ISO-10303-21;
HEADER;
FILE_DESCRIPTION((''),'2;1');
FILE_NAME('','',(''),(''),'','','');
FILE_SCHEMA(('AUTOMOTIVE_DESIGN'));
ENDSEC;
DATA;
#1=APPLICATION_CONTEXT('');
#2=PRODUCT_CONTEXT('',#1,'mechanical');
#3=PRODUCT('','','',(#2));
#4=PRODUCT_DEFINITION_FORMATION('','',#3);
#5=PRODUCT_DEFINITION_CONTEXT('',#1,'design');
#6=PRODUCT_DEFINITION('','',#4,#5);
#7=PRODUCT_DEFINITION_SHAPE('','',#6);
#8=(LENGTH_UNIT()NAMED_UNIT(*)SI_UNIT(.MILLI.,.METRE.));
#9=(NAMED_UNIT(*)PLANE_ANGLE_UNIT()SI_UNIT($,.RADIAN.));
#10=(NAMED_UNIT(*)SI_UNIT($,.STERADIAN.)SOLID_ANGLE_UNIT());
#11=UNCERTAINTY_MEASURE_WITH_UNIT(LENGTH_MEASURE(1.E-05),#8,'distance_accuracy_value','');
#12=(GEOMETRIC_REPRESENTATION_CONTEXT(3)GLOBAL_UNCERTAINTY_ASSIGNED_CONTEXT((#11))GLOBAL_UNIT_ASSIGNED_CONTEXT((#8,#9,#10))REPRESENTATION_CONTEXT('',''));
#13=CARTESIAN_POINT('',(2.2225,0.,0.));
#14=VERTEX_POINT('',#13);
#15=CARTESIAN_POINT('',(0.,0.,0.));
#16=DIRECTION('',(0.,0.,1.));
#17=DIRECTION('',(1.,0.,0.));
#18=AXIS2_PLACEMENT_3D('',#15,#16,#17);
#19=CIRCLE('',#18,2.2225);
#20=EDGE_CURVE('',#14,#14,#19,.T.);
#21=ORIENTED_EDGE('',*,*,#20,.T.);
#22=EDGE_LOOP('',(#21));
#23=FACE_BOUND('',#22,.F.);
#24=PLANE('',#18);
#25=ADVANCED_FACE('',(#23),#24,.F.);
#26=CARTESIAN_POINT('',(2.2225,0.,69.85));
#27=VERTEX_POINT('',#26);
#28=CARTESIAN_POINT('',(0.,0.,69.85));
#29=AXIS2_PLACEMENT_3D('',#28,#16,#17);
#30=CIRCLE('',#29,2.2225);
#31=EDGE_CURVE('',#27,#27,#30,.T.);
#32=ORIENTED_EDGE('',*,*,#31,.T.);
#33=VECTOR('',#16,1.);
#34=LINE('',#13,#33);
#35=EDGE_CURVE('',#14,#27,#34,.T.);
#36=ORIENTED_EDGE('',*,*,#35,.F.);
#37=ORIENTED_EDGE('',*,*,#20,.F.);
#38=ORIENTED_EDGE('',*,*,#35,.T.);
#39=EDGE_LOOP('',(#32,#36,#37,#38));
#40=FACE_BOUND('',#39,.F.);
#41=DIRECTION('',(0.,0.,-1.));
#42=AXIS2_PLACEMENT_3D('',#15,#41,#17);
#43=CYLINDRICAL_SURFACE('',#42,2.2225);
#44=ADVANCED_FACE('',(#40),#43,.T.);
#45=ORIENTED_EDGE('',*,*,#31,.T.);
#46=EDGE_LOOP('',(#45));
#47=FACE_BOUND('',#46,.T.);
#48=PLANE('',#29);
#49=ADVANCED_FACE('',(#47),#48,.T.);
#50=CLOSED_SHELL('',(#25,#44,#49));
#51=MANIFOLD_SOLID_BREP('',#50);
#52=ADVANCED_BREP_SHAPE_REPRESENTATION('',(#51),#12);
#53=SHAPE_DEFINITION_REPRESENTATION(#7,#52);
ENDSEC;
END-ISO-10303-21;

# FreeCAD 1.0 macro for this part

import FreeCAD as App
import Part
import Sketcher
from FreeCAD import Vector
Q = App.Units.Quantity

doc = App.newDocument("Part")
body = doc.addObject("PartDesign::Body", "Body")

# Sketch on XY plane
sketch1 = body.newObject("Sketcher::SketchObject", "Sketch")
sketch1.AttachmentSupport = (doc.getObject("XY_Plane"), [""])
sketch1.MapMode = "FlatFace"
sketch1.addGeometry(Part.Circle(Vector(0, 0, 0), Vector(0, 0, 1), 2.2), False)
sketch1.addConstraint([
    Sketcher.Constraint("Coincident", 0, 3, -1, 1),
    Sketcher.Constraint("Diameter", 0, Q("0.175 in")),
])
pad1 = body.newObject("PartDesign::Pad", "Pad")
pad1.Profile = sketch1
pad1.Length = Q("2.75 in")

doc.recompute()
